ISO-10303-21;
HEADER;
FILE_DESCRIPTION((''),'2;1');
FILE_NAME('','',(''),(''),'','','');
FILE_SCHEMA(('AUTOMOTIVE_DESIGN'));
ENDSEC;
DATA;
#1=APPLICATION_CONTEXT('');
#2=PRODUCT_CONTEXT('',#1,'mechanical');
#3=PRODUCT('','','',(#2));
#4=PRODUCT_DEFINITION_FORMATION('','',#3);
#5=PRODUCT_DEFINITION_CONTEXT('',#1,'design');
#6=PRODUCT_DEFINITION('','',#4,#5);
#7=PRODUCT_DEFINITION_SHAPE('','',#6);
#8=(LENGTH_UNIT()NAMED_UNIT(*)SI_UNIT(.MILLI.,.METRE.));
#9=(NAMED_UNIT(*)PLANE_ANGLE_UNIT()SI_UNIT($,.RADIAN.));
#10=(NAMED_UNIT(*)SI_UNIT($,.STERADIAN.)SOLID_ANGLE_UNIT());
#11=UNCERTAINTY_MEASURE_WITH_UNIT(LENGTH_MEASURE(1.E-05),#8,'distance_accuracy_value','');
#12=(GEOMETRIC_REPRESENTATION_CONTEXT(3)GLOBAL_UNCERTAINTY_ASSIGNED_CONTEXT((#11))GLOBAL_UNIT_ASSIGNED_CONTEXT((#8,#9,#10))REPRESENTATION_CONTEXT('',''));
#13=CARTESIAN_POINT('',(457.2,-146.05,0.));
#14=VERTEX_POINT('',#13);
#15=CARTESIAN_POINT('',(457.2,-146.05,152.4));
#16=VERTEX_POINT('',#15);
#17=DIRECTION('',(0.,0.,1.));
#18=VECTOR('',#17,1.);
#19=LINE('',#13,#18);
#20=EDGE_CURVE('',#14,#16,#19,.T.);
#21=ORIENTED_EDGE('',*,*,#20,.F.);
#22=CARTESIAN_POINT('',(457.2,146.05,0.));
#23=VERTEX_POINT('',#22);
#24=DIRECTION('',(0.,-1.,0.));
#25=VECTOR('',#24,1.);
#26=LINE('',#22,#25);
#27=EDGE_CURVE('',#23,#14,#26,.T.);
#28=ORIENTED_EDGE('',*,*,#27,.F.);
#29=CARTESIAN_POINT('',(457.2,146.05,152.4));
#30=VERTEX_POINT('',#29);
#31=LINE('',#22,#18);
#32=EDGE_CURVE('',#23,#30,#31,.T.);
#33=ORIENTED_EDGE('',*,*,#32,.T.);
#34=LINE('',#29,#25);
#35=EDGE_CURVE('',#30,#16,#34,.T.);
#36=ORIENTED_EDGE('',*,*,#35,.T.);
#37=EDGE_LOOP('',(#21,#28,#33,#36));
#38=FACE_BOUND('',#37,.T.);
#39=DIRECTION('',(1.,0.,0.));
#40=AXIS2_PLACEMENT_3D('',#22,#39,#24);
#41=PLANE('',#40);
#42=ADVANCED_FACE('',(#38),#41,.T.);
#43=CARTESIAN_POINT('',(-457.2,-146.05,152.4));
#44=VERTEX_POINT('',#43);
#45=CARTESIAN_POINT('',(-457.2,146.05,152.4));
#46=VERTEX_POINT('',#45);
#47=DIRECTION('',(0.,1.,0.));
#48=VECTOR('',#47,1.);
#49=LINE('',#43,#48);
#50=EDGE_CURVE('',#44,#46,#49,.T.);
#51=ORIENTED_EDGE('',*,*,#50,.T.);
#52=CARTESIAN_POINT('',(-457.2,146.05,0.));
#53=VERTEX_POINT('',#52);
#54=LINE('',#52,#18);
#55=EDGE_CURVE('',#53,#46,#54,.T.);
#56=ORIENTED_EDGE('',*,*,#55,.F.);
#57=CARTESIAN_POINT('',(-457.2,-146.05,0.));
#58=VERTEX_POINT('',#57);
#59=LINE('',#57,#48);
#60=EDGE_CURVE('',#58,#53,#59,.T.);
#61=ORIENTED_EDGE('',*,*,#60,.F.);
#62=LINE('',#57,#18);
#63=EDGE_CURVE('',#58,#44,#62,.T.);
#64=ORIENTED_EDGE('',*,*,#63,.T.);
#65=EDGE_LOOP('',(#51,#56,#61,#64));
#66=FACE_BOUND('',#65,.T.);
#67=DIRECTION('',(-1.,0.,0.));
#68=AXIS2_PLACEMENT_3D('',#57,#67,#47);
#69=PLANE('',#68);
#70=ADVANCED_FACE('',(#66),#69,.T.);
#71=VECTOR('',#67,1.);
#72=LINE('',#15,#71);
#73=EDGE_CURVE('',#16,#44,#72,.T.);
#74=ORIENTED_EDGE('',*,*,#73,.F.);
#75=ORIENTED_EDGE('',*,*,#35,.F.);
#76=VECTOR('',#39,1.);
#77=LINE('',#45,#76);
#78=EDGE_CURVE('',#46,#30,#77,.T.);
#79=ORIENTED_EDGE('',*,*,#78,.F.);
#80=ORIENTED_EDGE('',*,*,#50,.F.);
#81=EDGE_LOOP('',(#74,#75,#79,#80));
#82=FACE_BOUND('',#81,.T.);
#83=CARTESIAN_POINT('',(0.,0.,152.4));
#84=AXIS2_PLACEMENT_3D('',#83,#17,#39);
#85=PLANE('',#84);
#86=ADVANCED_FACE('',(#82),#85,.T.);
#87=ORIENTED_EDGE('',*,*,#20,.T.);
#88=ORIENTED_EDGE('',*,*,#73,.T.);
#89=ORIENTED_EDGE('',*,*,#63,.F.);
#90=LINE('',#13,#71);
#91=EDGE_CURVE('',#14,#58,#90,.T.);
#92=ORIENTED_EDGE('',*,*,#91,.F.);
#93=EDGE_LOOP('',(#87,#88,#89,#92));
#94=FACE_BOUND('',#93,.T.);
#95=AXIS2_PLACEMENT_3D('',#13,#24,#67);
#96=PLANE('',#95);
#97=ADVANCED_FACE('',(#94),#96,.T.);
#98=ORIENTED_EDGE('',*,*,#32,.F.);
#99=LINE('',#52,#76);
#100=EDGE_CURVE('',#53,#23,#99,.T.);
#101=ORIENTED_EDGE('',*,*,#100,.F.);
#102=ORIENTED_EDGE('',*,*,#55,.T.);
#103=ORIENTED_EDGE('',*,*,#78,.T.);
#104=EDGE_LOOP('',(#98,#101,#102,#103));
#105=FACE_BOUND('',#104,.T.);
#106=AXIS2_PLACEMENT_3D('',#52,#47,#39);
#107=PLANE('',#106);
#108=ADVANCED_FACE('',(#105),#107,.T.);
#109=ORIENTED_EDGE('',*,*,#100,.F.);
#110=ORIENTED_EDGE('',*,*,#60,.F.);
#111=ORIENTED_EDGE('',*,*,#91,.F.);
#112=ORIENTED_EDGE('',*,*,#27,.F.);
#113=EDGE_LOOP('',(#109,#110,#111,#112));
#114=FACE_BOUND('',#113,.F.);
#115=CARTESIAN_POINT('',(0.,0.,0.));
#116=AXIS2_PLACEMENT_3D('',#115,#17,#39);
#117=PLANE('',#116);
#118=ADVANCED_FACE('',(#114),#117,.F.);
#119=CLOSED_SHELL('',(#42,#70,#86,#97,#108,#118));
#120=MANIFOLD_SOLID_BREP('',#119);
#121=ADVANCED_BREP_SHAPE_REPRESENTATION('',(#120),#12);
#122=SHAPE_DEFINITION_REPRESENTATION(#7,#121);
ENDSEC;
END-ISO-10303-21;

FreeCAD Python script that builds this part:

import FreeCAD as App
import Part
import Sketcher
Q = App.Units.Quantity


def add_polygon(sketch, points):
    """Adds a closed chain of lines whose ends are joined by coincident constraints."""
    first, n = sketch.GeometryCount, len(points)
    for a, b in zip(points, points[1:] + points[:1]):
        sketch.addGeometry(Part.LineSegment(App.Vector(*a, 0), App.Vector(*b, 0)), False)
    for i in range(n):
        sketch.addConstraint(Sketcher.Constraint("Coincident", first + i, 2, first + (i + 1) % n, 1))

doc = App.newDocument("Part")
body = doc.addObject("PartDesign::Body", "Body")

# Sketch on XY plane
sketch1 = body.newObject("Sketcher::SketchObject", "Sketch")
sketch1.AttachmentSupport = (doc.getObject("XY_Plane"), [""])
sketch1.MapMode = "FlatFace"
add_polygon(sketch1, [(457.2, 146.05), (-457.2, 146.05), (-457.2, -146.05), (457.2, -146.05)])  # lines 0-3
sketch1.addConstraint(Sketcher.Constraint("Horizontal", 0))
sketch1.addConstraint(Sketcher.Constraint("Vertical", 1))
sketch1.addConstraint(Sketcher.Constraint("Horizontal", 2))
sketch1.addConstraint(Sketcher.Constraint("Vertical", 3))
sketch1.addConstraint(Sketcher.Constraint("Symmetric", 0, 2, 2, 2, -1, 1))
sketch1.addConstraint(Sketcher.Constraint("DistanceX", 0, 2, 0, 1, Q("36 in")))
sketch1.addConstraint(Sketcher.Constraint("DistanceY", 1, 2, 1, 1, Q("11.5 in")))
pad1 = body.newObject("PartDesign::Pad", "Pad")
pad1.Profile = sketch1
pad1.Length = Q("6 in")

doc.recompute()
